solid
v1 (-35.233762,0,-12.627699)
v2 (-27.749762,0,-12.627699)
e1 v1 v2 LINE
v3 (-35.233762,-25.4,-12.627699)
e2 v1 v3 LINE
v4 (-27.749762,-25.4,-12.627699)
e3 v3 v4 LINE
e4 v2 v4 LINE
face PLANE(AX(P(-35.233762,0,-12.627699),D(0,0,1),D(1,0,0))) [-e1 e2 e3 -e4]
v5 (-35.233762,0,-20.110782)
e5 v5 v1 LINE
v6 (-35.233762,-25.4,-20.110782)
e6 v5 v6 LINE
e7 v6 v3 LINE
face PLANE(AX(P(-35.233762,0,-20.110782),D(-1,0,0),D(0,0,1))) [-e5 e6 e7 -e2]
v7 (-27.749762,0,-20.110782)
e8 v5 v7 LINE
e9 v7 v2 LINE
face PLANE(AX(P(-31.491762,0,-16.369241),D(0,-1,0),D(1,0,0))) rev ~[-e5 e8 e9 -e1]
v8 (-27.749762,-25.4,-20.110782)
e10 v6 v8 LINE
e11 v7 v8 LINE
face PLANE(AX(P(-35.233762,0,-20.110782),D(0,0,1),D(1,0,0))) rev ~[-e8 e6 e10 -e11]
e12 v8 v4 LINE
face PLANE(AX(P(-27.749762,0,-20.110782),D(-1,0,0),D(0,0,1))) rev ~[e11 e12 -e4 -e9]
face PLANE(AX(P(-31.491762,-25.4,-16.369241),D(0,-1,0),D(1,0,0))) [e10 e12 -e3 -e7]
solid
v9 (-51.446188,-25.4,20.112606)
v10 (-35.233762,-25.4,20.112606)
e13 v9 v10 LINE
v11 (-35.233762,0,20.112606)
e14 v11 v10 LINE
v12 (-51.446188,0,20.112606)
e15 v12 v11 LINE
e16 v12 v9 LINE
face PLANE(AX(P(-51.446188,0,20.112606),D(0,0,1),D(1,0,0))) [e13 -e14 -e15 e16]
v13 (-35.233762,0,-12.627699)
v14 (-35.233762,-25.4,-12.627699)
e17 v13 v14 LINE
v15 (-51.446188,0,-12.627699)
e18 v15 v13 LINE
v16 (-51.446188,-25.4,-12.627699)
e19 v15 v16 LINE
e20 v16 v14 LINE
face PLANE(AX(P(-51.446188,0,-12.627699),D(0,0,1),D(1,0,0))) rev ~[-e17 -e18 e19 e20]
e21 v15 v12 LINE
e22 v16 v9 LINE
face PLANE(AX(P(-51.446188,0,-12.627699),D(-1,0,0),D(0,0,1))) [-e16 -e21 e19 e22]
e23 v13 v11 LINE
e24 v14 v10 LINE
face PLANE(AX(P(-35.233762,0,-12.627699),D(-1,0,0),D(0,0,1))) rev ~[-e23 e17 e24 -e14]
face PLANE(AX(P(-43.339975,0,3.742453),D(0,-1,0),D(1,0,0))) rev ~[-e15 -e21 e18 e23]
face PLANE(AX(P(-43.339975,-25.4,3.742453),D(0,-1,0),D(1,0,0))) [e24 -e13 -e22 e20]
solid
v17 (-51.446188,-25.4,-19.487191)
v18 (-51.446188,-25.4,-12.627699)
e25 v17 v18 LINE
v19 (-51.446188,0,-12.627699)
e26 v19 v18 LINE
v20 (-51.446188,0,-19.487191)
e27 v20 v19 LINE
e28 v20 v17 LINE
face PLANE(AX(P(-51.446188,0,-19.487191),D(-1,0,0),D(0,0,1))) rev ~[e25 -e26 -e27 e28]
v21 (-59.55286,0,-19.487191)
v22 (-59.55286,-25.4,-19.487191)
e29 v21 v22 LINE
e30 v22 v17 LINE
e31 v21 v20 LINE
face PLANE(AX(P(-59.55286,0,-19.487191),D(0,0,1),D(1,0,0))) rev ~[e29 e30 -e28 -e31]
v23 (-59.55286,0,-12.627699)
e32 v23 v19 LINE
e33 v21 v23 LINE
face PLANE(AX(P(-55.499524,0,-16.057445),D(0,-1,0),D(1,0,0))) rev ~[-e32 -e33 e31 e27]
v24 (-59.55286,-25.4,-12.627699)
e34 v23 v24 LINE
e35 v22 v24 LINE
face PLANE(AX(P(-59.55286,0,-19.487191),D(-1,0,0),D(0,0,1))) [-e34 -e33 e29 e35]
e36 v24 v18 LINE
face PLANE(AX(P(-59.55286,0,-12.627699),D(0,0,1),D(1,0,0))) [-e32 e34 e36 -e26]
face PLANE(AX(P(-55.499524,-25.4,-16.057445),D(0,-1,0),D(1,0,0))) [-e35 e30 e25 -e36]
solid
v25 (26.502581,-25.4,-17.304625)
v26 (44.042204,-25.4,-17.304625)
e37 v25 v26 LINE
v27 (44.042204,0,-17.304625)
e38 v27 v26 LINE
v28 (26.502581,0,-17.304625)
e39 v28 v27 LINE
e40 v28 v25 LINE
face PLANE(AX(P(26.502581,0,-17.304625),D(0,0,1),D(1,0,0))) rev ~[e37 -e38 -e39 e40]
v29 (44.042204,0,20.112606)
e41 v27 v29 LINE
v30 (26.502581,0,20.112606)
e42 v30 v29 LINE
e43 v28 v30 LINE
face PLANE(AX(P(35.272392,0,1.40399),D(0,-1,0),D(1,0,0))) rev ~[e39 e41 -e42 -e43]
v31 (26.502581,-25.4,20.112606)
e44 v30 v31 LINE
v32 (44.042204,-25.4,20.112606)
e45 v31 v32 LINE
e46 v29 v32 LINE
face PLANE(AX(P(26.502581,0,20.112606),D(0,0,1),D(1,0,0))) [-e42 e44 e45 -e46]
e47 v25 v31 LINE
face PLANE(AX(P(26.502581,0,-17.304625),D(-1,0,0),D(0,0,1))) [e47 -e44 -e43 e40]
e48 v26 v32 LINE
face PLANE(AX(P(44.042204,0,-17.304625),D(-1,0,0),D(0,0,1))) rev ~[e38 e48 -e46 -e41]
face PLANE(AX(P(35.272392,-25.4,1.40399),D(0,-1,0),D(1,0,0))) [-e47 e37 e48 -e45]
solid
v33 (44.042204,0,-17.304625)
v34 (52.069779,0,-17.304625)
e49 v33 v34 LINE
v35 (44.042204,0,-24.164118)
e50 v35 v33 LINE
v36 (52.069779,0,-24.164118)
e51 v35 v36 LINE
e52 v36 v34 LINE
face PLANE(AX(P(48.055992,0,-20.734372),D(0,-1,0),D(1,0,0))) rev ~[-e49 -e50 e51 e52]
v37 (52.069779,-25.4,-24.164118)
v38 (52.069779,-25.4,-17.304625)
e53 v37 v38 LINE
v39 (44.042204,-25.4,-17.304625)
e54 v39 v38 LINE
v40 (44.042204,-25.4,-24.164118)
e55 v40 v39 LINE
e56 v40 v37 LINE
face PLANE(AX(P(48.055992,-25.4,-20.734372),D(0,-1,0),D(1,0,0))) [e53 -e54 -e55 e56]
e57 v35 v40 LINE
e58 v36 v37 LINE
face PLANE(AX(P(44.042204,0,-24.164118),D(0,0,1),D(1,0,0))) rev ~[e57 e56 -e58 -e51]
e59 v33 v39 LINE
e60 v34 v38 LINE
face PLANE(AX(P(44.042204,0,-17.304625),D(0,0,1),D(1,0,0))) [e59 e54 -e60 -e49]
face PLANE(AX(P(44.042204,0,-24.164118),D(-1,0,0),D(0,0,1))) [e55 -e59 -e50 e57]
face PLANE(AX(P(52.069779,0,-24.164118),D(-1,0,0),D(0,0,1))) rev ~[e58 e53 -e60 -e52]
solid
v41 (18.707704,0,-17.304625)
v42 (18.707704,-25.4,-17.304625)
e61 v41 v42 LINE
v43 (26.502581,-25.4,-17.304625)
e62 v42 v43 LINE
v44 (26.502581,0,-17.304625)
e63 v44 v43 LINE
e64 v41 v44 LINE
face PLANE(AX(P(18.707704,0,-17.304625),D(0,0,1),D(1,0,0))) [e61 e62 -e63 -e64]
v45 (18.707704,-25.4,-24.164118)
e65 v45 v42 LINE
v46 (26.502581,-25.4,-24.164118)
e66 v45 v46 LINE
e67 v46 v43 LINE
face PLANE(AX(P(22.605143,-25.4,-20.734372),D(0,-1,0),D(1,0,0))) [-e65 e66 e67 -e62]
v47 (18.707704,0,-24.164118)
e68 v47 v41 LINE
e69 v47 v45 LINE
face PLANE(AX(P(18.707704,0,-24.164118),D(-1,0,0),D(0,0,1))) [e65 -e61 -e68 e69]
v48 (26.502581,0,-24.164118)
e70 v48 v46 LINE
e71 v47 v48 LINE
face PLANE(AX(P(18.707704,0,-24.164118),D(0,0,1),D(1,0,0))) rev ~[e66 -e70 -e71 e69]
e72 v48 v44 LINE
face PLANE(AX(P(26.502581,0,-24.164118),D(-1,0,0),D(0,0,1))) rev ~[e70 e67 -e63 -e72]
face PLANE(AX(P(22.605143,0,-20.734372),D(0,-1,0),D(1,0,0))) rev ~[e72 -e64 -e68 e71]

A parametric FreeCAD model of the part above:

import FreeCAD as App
import Part
import Sketcher
from FreeCAD import Vector
Q = App.Units.Quantity

doc = App.newDocument("Part")
params = doc.addObject("Spreadsheet::Sheet", "Params")
for row, (alias, value) in enumerate([
    ("pad1_length", "1 in"),
    ("pad2_length", "1 in"),
    ("pad3_length", "1 in"),
    ("pad4_length", "1 in"),
    ("pad5_length", "1 in"),
    ("pad6_length", "1 in"),
], start=1):
    params.set(f"A{row}", alias)
    params.set(f"B{row}", "=" + value)
    params.setAlias(f"B{row}", alias)

body = doc.addObject("PartDesign::Body", "Body")

# Sketch on XZ plane
sketch1 = doc.addObject("Sketcher::SketchObject", "Sketch")
body.addObject(sketch1)
sketch1.AttachmentSupport = (doc.XZ_Plane, [""])
sketch1.MapMode = "FlatFace"
sketch1.addGeometry([
    Part.LineSegment(Vector(-51, 20, 0), Vector(-51, -13, 0)),
    Part.LineSegment(Vector(-51, -13, 0), Vector(-35, -13, 0)),
    Part.LineSegment(Vector(-35, -13, 0), Vector(-35, 20, 0)),
    Part.LineSegment(Vector(-35, 20, 0), Vector(-51, 20, 0)),
], False)
sketch1.addConstraint([
    Sketcher.Constraint("Coincident", 0, 2, 1, 1),
    Sketcher.Constraint("Coincident", 1, 2, 2, 1),
    Sketcher.Constraint("Coincident", 2, 2, 3, 1),
    Sketcher.Constraint("Coincident", 3, 2, 0, 1),
    Sketcher.Constraint("Vertical", 0),
    Sketcher.Constraint("Horizontal", 1),
    Sketcher.Constraint("Vertical", 2),
    Sketcher.Constraint("Horizontal", 3),
    Sketcher.Constraint("DistanceY", 0, 2, -1, 1, Q("12.627699 mm")),
    Sketcher.Constraint("DistanceX", 1, 1, 1, 2, Q("16.212426 mm")),
    Sketcher.Constraint("DistanceY", 0, 2, 0, 1, Q("32.740305 mm")),
    Sketcher.Constraint("DistanceX", 0, 2, -1, 1, Q("51.446188 mm")),
])
pad1 = doc.addObject("PartDesign::Pad", "Pad")
body.addObject(pad1)
pad1.Profile = sketch1
pad1.setExpression("Length", "Params.pad1_length")
body2 = doc.addObject("PartDesign::Body", "Body001")

# Sketch on XZ plane
sketch2 = doc.addObject("Sketcher::SketchObject", "Sketch001")
body2.addObject(sketch2)
sketch2.AttachmentSupport = (doc.getObject("XZ_Plane001"), [""])
sketch2.MapMode = "FlatFace"
sketch2.addGeometry([
    Part.LineSegment(Vector(-60, -13, 0), Vector(-60, -19, 0)),
    Part.LineSegment(Vector(-60, -19, 0), Vector(-51, -19, 0)),
    Part.LineSegment(Vector(-51, -19, 0), Vector(-51, -13, 0)),
    Part.LineSegment(Vector(-51, -13, 0), Vector(-60, -13, 0)),
], False)
sketch2.addConstraint([
    Sketcher.Constraint("Coincident", 0, 2, 1, 1),
    Sketcher.Constraint("Coincident", 1, 2, 2, 1),
    Sketcher.Constraint("Coincident", 2, 2, 3, 1),
    Sketcher.Constraint("Coincident", 3, 2, 0, 1),
    Sketcher.Constraint("Vertical", 0),
    Sketcher.Constraint("Horizontal", 1),
    Sketcher.Constraint("Vertical", 2),
    Sketcher.Constraint("Horizontal", 3),
    Sketcher.Constraint("DistanceX", 1, 1, 1, 2, Q("8.106671 mm")),
    Sketcher.Constraint("DistanceY", 0, 2, 0, 1, Q("6.859492 mm")),
    Sketcher.Constraint("DistanceY", 2, 2, -1, 1, Q("12.627699 mm")),
    Sketcher.Constraint("DistanceX", 0, 2, -1, 1, Q("59.55286 mm")),
])
pad2 = doc.addObject("PartDesign::Pad", "Pad001")
body2.addObject(pad2)
pad2.Profile = sketch2
pad2.setExpression("Length", "Params.pad2_length")
body3 = doc.addObject("PartDesign::Body", "Body002")

# Sketch on XZ plane
sketch3 = doc.addObject("Sketcher::SketchObject", "Sketch002")
body3.addObject(sketch3)
sketch3.AttachmentSupport = (doc.getObject("XZ_Plane002"), [""])
sketch3.MapMode = "FlatFace"
sketch3.addGeometry([
    Part.LineSegment(Vector(-35, -13, 0), Vector(-35, -20, 0)),
    Part.LineSegment(Vector(-35, -20, 0), Vector(-28, -20, 0)),
    Part.LineSegment(Vector(-28, -20, 0), Vector(-28, -13, 0)),
    Part.LineSegment(Vector(-28, -13, 0), Vector(-35, -13, 0)),
], False)
sketch3.addConstraint([
    Sketcher.Constraint("Coincident", 0, 2, 1, 1),
    Sketcher.Constraint("Coincident", 1, 2, 2, 1),
    Sketcher.Constraint("Coincident", 2, 2, 3, 1),
    Sketcher.Constraint("Coincident", 3, 2, 0, 1),
    Sketcher.Constraint("Vertical", 0),
    Sketcher.Constraint("Horizontal", 1),
    Sketcher.Constraint("Vertical", 2),
    Sketcher.Constraint("Horizontal", 3),
    Sketcher.Constraint("DistanceX", 1, 1, 1, 2, Q("7.484 mm")),
    Sketcher.Constraint("DistanceY", 2, 2, -1, 1, Q("12.627699 mm")),
    Sketcher.Constraint("DistanceY", 0, 2, 0, 1, Q("7.483083 mm")),
    Sketcher.Constraint("DistanceX", 1, 2, -1, 1, Q("27.749762 mm")),
])
pad3 = doc.addObject("PartDesign::Pad", "Pad002")
body3.addObject(pad3)
pad3.Profile = sketch3
pad3.setExpression("Length", "Params.pad3_length")
body4 = doc.addObject("PartDesign::Body", "Body003")

# Sketch on XZ plane
sketch4 = doc.addObject("Sketcher::SketchObject", "Sketch003")
body4.addObject(sketch4)
sketch4.AttachmentSupport = (doc.getObject("XZ_Plane003"), [""])
sketch4.MapMode = "FlatFace"
sketch4.addGeometry([
    Part.LineSegment(Vector(19, -17, 0), Vector(19, -24, 0)),
    Part.LineSegment(Vector(19, -24, 0), Vector(27, -24, 0)),
    Part.LineSegment(Vector(27, -24, 0), Vector(27, -17, 0)),
    Part.LineSegment(Vector(27, -17, 0), Vector(19, -17, 0)),
], False)
sketch4.addConstraint([
    Sketcher.Constraint("Coincident", 0, 2, 1, 1),
    Sketcher.Constraint("Coincident", 1, 2, 2, 1),
    Sketcher.Constraint("Coincident", 2, 2, 3, 1),
    Sketcher.Constraint("Coincident", 3, 2, 0, 1),
    Sketcher.Constraint("Vertical", 0),
    Sketcher.Constraint("Horizontal", 1),
    Sketcher.Constraint("Vertical", 2),
    Sketcher.Constraint("Horizontal", 3),
    Sketcher.Constraint("DistanceX", 1, 1, 1, 2, Q("7.794878 mm")),
    Sketcher.Constraint("DistanceY", 0, 2, 0, 1, Q("6.859493 mm")),
    Sketcher.Constraint("DistanceX", -1, 1, 1, 2, Q("26.502581 mm")),
    Sketcher.Constraint("DistanceY", 0, 2, -1, 1, Q("24.164118 mm")),
])
pad4 = doc.addObject("PartDesign::Pad", "Pad003")
body4.addObject(pad4)
pad4.Profile = sketch4
pad4.setExpression("Length", "Params.pad4_length")
body5 = doc.addObject("PartDesign::Body", "Body004")

# Sketch on XZ plane
sketch5 = doc.addObject("Sketcher::SketchObject", "Sketch004")
body5.addObject(sketch5)
sketch5.AttachmentSupport = (doc.getObject("XZ_Plane004"), [""])
sketch5.MapMode = "FlatFace"
sketch5.addGeometry([
    Part.LineSegment(Vector(44, -17, 0), Vector(44, -24, 0)),
    Part.LineSegment(Vector(44, -24, 0), Vector(52, -24, 0)),
    Part.LineSegment(Vector(52, -24, 0), Vector(52, -17, 0)),
    Part.LineSegment(Vector(52, -17, 0), Vector(44, -17, 0)),
], False)
sketch5.addConstraint([
    Sketcher.Constraint("Coincident", 0, 2, 1, 1),
    Sketcher.Constraint("Coincident", 1, 2, 2, 1),
    Sketcher.Constraint("Coincident", 2, 2, 3, 1),
    Sketcher.Constraint("Coincident", 3, 2, 0, 1),
    Sketcher.Constraint("Vertical", 0),
    Sketcher.Constraint("Horizontal", 1),
    Sketcher.Constraint("Vertical", 2),
    Sketcher.Constraint("Horizontal", 3),
    Sketcher.Constraint("DistanceX", 1, 1, 1, 2, Q("8.027576 mm")),
    Sketcher.Constraint("DistanceY", 0, 2, 0, 1, Q("6.859493 mm")),
    Sketcher.Constraint("DistanceX", -1, 1, 1, 2, Q("52.069779 mm")),
    Sketcher.Constraint("DistanceY", 0, 2, -1, 1, Q("24.164118 mm")),
])
pad5 = doc.addObject("PartDesign::Pad", "Pad004")
body5.addObject(pad5)
pad5.Profile = sketch5
pad5.setExpression("Length", "Params.pad5_length")
body6 = doc.addObject("PartDesign::Body", "Body005")

# Sketch on XZ plane
sketch6 = doc.addObject("Sketcher::SketchObject", "Sketch005")
body6.addObject(sketch6)
sketch6.AttachmentSupport = (doc.getObject("XZ_Plane005"), [""])
sketch6.MapMode = "FlatFace"
sketch6.addGeometry([
    Part.LineSegment(Vector(27, 20, 0), Vector(27, -17, 0)),
    Part.LineSegment(Vector(27, -17, 0), Vector(44, -17, 0)),
    Part.LineSegment(Vector(44, -17, 0), Vector(44, 20, 0)),
    Part.LineSegment(Vector(44, 20, 0), Vector(27, 20, 0)),
], False)
sketch6.addConstraint([
    Sketcher.Constraint("Coincident", 0, 2, 1, 1),
    Sketcher.Constraint("Coincident", 1, 2, 2, 1),
    Sketcher.Constraint("Coincident", 2, 2, 3, 1),
    Sketcher.Constraint("Coincident", 3, 2, 0, 1),
    Sketcher.Constraint("Vertical", 0),
    Sketcher.Constraint("Horizontal", 1),
    Sketcher.Constraint("Vertical", 2),
    Sketcher.Constraint("Horizontal", 3),
    Sketcher.Constraint("DistanceY", 0, 2, 0, 1, Q("37.417231 mm")),
    Sketcher.Constraint("DistanceX", 1, 1, 1, 2, Q("17.539622 mm")),
    Sketcher.Constraint("DistanceX", -1, 1, 0, 2, Q("26.502581 mm")),
    Sketcher.Constraint("DistanceY", 0, 2, -1, 1, Q("17.304625 mm")),
])
pad6 = doc.addObject("PartDesign::Pad", "Pad005")
body6.addObject(pad6)
pad6.Profile = sketch6
pad6.setExpression("Length", "Params.pad6_length")

doc.recompute()
